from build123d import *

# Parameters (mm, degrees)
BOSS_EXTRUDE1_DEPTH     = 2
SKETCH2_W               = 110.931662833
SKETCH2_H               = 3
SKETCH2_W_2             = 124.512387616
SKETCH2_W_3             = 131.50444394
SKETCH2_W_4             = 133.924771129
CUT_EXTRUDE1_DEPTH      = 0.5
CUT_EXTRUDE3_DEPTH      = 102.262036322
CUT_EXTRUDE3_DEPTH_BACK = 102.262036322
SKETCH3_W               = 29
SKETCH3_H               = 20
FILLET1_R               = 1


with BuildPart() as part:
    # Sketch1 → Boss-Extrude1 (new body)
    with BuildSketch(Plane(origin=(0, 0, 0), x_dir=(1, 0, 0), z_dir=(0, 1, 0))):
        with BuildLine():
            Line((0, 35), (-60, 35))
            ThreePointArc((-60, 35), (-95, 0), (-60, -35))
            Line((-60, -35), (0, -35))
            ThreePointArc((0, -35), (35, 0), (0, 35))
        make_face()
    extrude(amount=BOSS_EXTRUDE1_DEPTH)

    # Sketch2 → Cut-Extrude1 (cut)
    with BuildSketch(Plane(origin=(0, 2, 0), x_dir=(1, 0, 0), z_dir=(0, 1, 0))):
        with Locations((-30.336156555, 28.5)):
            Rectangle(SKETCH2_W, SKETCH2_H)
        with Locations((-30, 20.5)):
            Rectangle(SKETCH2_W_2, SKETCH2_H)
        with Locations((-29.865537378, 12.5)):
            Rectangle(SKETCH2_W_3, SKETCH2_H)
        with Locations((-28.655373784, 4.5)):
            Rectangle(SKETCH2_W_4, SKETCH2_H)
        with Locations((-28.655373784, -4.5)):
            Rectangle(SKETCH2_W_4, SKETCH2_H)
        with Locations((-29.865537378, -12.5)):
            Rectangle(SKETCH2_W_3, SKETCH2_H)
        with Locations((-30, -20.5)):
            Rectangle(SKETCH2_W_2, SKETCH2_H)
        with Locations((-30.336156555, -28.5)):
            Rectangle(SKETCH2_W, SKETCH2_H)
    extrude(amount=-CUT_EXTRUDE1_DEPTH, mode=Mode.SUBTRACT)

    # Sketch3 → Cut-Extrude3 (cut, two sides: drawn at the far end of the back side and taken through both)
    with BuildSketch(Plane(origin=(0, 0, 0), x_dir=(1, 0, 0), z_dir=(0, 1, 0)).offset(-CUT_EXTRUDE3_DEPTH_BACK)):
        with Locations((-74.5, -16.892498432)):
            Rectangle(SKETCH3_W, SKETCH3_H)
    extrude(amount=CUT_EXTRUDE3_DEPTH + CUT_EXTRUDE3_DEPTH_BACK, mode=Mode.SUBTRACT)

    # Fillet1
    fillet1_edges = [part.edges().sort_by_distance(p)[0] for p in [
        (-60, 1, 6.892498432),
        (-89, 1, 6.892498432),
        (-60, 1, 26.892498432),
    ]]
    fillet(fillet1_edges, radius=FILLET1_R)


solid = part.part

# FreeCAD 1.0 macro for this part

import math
import FreeCAD as App
import Part
import Sketcher
from FreeCAD import Vector


def edges_at(feature, points):
    """Names of the edges that pass closest to the given points."""
    edges = feature.Shape.Edges
    near = lambda p: min(range(len(edges)), key=lambda i: edges[i].distToShape(Part.Vertex(*p))[0])
    return sorted({f"Edge{near(p) + 1}" for p in points})

doc = App.newDocument("Part")
body = doc.addObject("PartDesign::Body", "Body")

sketch1 = body.newObject("Sketcher::SketchObject", "Sketch")
sketch1.AttachmentSupport = (doc.getObject("XZ_Plane"), [""])
sketch1.MapMode = "FlatFace"
sketch1.addGeometry(Part.LineSegment(Vector(0, -35, 0), Vector(-60, -35, 0)), False)
sketch1.addGeometry(Part.ArcOfCircle(Part.Circle(Vector(-60, 0, 0), Vector(0, 0, 1), 35), math.radians(90), math.radians(270)), False)
sketch1.addGeometry(Part.LineSegment(Vector(-60, 35, 0), Vector(0, 35, 0)), False)
sketch1.addGeometry(Part.ArcOfCircle(Part.Circle(Vector(0, 0, 0), Vector(0, 0, 1), 35), math.radians(-90), math.radians(90)), False)
sketch1.addConstraint(Sketcher.Constraint("Tangent", 0, 2, 1, 2))
sketch1.addConstraint(Sketcher.Constraint("Tangent", 1, 1, 2, 1))
sketch1.addConstraint(Sketcher.Constraint("Tangent", 2, 2, 3, 2))
sketch1.addConstraint(Sketcher.Constraint("Tangent", 3, 1, 0, 1))
sketch1.addConstraint(Sketcher.Constraint("Horizontal", 0))
sketch1.addConstraint(Sketcher.Constraint("Horizontal", 2))
sketch1.addConstraint(Sketcher.Constraint("Coincident", 3, 3, -1, 1))
sketch1.addConstraint(Sketcher.Constraint("Radius", 1, 35.0))
sketch1.addConstraint(Sketcher.Constraint("DistanceX", 0, 2, 0, 1, 60.0))
pad1 = body.newObject("PartDesign::Pad", "Pad")
pad1.Profile = sketch1
pad1.Length = 2
pad1.Reversed = True

sketch2 = body.newObject("Sketcher::SketchObject", "Sketch001")
sketch2.AttachmentSupport = (doc.getObject("XZ_Plane"), [""])
sketch2.MapMode = "FlatFace"
sketch2.AttachmentOffset = App.Placement(Vector(0, 0, -2), App.Rotation())
sketch2.addGeometry(Part.LineSegment(Vector(-85.8, -30, 0), Vector(-85.8, -27, 0)), False)
sketch2.addGeometry(Part.LineSegment(Vector(-85.8, -27, 0), Vector(25.1, -27, 0)), False)
sketch2.addGeometry(Part.LineSegment(Vector(25.1, -27, 0), Vector(25.1, -30, 0)), False)
sketch2.addGeometry(Part.LineSegment(Vector(25.1, -30, 0), Vector(-85.8, -30, 0)), False)
sketch2.addGeometry(Part.LineSegment(Vector(-92.3, -22, 0), Vector(-92.3, -19, 0)), False)
sketch2.addGeometry(Part.LineSegment(Vector(-92.3, -19, 0), Vector(32.3, -19, 0)), False)
sketch2.addGeometry(Part.LineSegment(Vector(32.3, -19, 0), Vector(32.3, -22, 0)), False)
sketch2.addGeometry(Part.LineSegment(Vector(32.3, -22, 0), Vector(-92.3, -22, 0)), False)
sketch2.addGeometry(Part.LineSegment(Vector(-95.6, -14, 0), Vector(-95.6, -11, 0)), False)
sketch2.addGeometry(Part.LineSegment(Vector(-95.6, -11, 0), Vector(35.9, -11, 0)), False)
sketch2.addGeometry(Part.LineSegment(Vector(35.9, -11, 0), Vector(35.9, -14, 0)), False)
sketch2.addGeometry(Part.LineSegment(Vector(35.9, -14, 0), Vector(-95.6, -14, 0)), False)
sketch2.addGeometry(Part.LineSegment(Vector(-95.6, -6, 0), Vector(-95.6, -3, 0)), False)
sketch2.addGeometry(Part.LineSegment(Vector(-95.6, -3, 0), Vector(38.3, -3, 0)), False)
sketch2.addGeometry(Part.LineSegment(Vector(38.3, -3, 0), Vector(38.3, -6, 0)), False)
sketch2.addGeometry(Part.LineSegment(Vector(38.3, -6, 0), Vector(-95.6, -6, 0)), False)
sketch2.addGeometry(Part.LineSegment(Vector(-95.6, 3, 0), Vector(-95.6, 6, 0)), False)
sketch2.addGeometry(Part.LineSegment(Vector(-95.6, 6, 0), Vector(38.3, 6, 0)), False)
sketch2.addGeometry(Part.LineSegment(Vector(38.3, 6, 0), Vector(38.3, 3, 0)), False)
sketch2.addGeometry(Part.LineSegment(Vector(38.3, 3, 0), Vector(-95.6, 3, 0)), False)
sketch2.addGeometry(Part.LineSegment(Vector(-95.6, 11, 0), Vector(-95.6, 14, 0)), False)
sketch2.addGeometry(Part.LineSegment(Vector(-95.6, 14, 0), Vector(35.9, 14, 0)), False)
sketch2.addGeometry(Part.LineSegment(Vector(35.9, 14, 0), Vector(35.9, 11, 0)), False)
sketch2.addGeometry(Part.LineSegment(Vector(35.9, 11, 0), Vector(-95.6, 11, 0)), False)
sketch2.addGeometry(Part.LineSegment(Vector(-92.3, 19, 0), Vector(-92.3, 22, 0)), False)
sketch2.addGeometry(Part.LineSegment(Vector(-92.3, 22, 0), Vector(32.3, 22, 0)), False)
sketch2.addGeometry(Part.LineSegment(Vector(32.3, 22, 0), Vector(32.3, 19, 0)), False)
sketch2.addGeometry(Part.LineSegment(Vector(32.3, 19, 0), Vector(-92.3, 19, 0)), False)
sketch2.addGeometry(Part.LineSegment(Vector(-85.8, 27, 0), Vector(-85.8, 30, 0)), False)
sketch2.addGeometry(Part.LineSegment(Vector(-85.8, 30, 0), Vector(25.1, 30, 0)), False)
sketch2.addGeometry(Part.LineSegment(Vector(25.1, 30, 0), Vector(25.1, 27, 0)), False)
sketch2.addGeometry(Part.LineSegment(Vector(25.1, 27, 0), Vector(-85.8, 27, 0)), False)
sketch2.addConstraint(Sketcher.Constraint("Coincident", 0, 2, 1, 1))
sketch2.addConstraint(Sketcher.Constraint("Coincident", 1, 2, 2, 1))
sketch2.addConstraint(Sketcher.Constraint("Coincident", 2, 2, 3, 1))
sketch2.addConstraint(Sketcher.Constraint("Coincident", 3, 2, 0, 1))
sketch2.addConstraint(Sketcher.Constraint("Coincident", 4, 2, 5, 1))
sketch2.addConstraint(Sketcher.Constraint("Coincident", 5, 2, 6, 1))
sketch2.addConstraint(Sketcher.Constraint("Coincident", 6, 2, 7, 1))
sketch2.addConstraint(Sketcher.Constraint("Coincident", 7, 2, 4, 1))
sketch2.addConstraint(Sketcher.Constraint("Coincident", 8, 2, 9, 1))
sketch2.addConstraint(Sketcher.Constraint("Coincident", 9, 2, 10, 1))
sketch2.addConstraint(Sketcher.Constraint("Coincident", 10, 2, 11, 1))
sketch2.addConstraint(Sketcher.Constraint("Coincident", 11, 2, 8, 1))
sketch2.addConstraint(Sketcher.Constraint("Coincident", 12, 2, 13, 1))
sketch2.addConstraint(Sketcher.Constraint("Coincident", 13, 2, 14, 1))
sketch2.addConstraint(Sketcher.Constraint("Coincident", 14, 2, 15, 1))
sketch2.addConstraint(Sketcher.Constraint("Coincident", 15, 2, 12, 1))
sketch2.addConstraint(Sketcher.Constraint("Coincident", 16, 2, 17, 1))
sketch2.addConstraint(Sketcher.Constraint("Coincident", 17, 2, 18, 1))
sketch2.addConstraint(Sketcher.Constraint("Coincident", 18, 2, 19, 1))
sketch2.addConstraint(Sketcher.Constraint("Coincident", 19, 2, 16, 1))
sketch2.addConstraint(Sketcher.Constraint("Coincident", 20, 2, 21, 1))
sketch2.addConstraint(Sketcher.Constraint("Coincident", 21, 2, 22, 1))
sketch2.addConstraint(Sketcher.Constraint("Coincident", 22, 2, 23, 1))
sketch2.addConstraint(Sketcher.Constraint("Coincident", 23, 2, 20, 1))
sketch2.addConstraint(Sketcher.Constraint("Coincident", 24, 2, 25, 1))
sketch2.addConstraint(Sketcher.Constraint("Coincident", 25, 2, 26, 1))
sketch2.addConstraint(Sketcher.Constraint("Coincident", 26, 2, 27, 1))
sketch2.addConstraint(Sketcher.Constraint("Coincident", 27, 2, 24, 1))
sketch2.addConstraint(Sketcher.Constraint("Coincident", 28, 2, 29, 1))
sketch2.addConstraint(Sketcher.Constraint("Coincident", 29, 2, 30, 1))
sketch2.addConstraint(Sketcher.Constraint("Coincident", 30, 2, 31, 1))
sketch2.addConstraint(Sketcher.Constraint("Coincident", 31, 2, 28, 1))
sketch2.addConstraint(Sketcher.Constraint("Vertical", 0))
sketch2.addConstraint(Sketcher.Constraint("Horizontal", 1))
sketch2.addConstraint(Sketcher.Constraint("Vertical", 2))
sketch2.addConstraint(Sketcher.Constraint("Horizontal", 3))
sketch2.addConstraint(Sketcher.Constraint("Vertical", 4))
sketch2.addConstraint(Sketcher.Constraint("Horizontal", 5))
sketch2.addConstraint(Sketcher.Constraint("Vertical", 6))
sketch2.addConstraint(Sketcher.Constraint("Horizontal", 7))
sketch2.addConstraint(Sketcher.Constraint("Vertical", 8))
sketch2.addConstraint(Sketcher.Constraint("Horizontal", 9))
sketch2.addConstraint(Sketcher.Constraint("Vertical", 10))
sketch2.addConstraint(Sketcher.Constraint("Horizontal", 11))
sketch2.addConstraint(Sketcher.Constraint("Vertical", 12))
sketch2.addConstraint(Sketcher.Constraint("Horizontal", 13))
sketch2.addConstraint(Sketcher.Constraint("Vertical", 14))
sketch2.addConstraint(Sketcher.Constraint("Horizontal", 15))
sketch2.addConstraint(Sketcher.Constraint("Vertical", 16))
sketch2.addConstraint(Sketcher.Constraint("Horizontal", 17))
sketch2.addConstraint(Sketcher.Constraint("Vertical", 18))
sketch2.addConstraint(Sketcher.Constraint("Horizontal", 19))
sketch2.addConstraint(Sketcher.Constraint("Vertical", 20))
sketch2.addConstraint(Sketcher.Constraint("Horizontal", 21))
sketch2.addConstraint(Sketcher.Constraint("Vertical", 22))
sketch2.addConstraint(Sketcher.Constraint("Horizontal", 23))
sketch2.addConstraint(Sketcher.Constraint("Vertical", 24))
sketch2.addConstraint(Sketcher.Constraint("Horizontal", 25))
sketch2.addConstraint(Sketcher.Constraint("Vertical", 26))
sketch2.addConstraint(Sketcher.Constraint("Horizontal", 27))
sketch2.addConstraint(Sketcher.Constraint("Vertical", 28))
sketch2.addConstraint(Sketcher.Constraint("Horizontal", 29))
sketch2.addConstraint(Sketcher.Constraint("Vertical", 30))
sketch2.addConstraint(Sketcher.Constraint("Horizontal", 31))
sketch2.addConstraint(Sketcher.Constraint("Symmetric", 15, 2, 16, 2, -1))
sketch2.addConstraint(Sketcher.Constraint("Symmetric", 13, 2, 18, 2, -1))
sketch2.addConstraint(Sketcher.Constraint("Symmetric", 11, 2, 20, 2, -1))
sketch2.addConstraint(Sketcher.Constraint("Symmetric", 9, 2, 22, 2, -1))
sketch2.addConstraint(Sketcher.Constraint("Symmetric", 7, 2, 24, 2, -1))
sketch2.addConstraint(Sketcher.Constraint("Symmetric", 5, 2, 26, 2, -1))
sketch2.addConstraint(Sketcher.Constraint("Symmetric", 3, 2, 28, 2, -1))
sketch2.addConstraint(Sketcher.Constraint("Symmetric", 1, 2, 30, 2, -1))
sketch2.addConstraint(Sketcher.Constraint("Vertical", 11, 2, 12, 2))
sketch2.addConstraint(Sketcher.Constraint("Equal", 2, 4))
sketch2.addConstraint(Sketcher.Constraint("Equal", 6, 8))
sketch2.addConstraint(Sketcher.Constraint("Equal", 10, 12))
sketch2.addConstraint(Sketcher.Constraint("DistanceY", 0, 1, 0, 2, 3.0))
sketch2.addConstraint(Sketcher.Constraint("DistanceY", 0, 2, -1, 1, 27.0))
sketch2.addConstraint(Sketcher.Constraint("DistanceY", 4, 2, -1, 1, 19.0))
sketch2.addConstraint(Sketcher.Constraint("DistanceY", 8, 2, -1, 1, 11.0))
sketch2.addConstraint(Sketcher.Constraint("DistanceY", 12, 2, -1, 1, 3.0))
sketch2.addConstraint(Sketcher.Constraint("DistanceX", 13, 1, 13, 2, 133.924771))
sketch2.addConstraint(Sketcher.Constraint("DistanceX", 1, 1, 1, 2, 110.931663))
sketch2.addConstraint(Sketcher.Constraint("DistanceX", 5, 1, 5, 2, 124.512388))
sketch2.addConstraint(Sketcher.Constraint("DistanceX", 9, 1, 9, 2, 131.504444))
sketch2.addConstraint(Sketcher.Constraint("DistanceX", 8, 2, -1, 1, 95.617759))
sketch2.addConstraint(Sketcher.Constraint("DistanceX", 4, 2, 1, 2, 117.385869))
sketch2.addConstraint(Sketcher.Constraint("DistanceX", 8, 2, 0, 2, 9.815771))
pocket1 = body.newObject("PartDesign::Pocket", "Pocket")
pocket1.Profile = sketch2
pocket1.Length = 0.5
pocket1.Reversed = True

sketch3 = body.newObject("Sketcher::SketchObject", "Sketch002")
sketch3.AttachmentSupport = (doc.getObject("XZ_Plane"), [""])
sketch3.MapMode = "FlatFace"
sketch3.addGeometry(Part.LineSegment(Vector(-89, 7, 0), Vector(-89, 27, 0)), False)
sketch3.addGeometry(Part.LineSegment(Vector(-89, 27, 0), Vector(-60, 27, 0)), False)
sketch3.addGeometry(Part.LineSegment(Vector(-60, 27, 0), Vector(-60, 7, 0)), False)
sketch3.addGeometry(Part.LineSegment(Vector(-60, 7, 0), Vector(-89, 7, 0)), False)
sketch3.addConstraint(Sketcher.Constraint("Coincident", 0, 2, 1, 1))
sketch3.addConstraint(Sketcher.Constraint("Coincident", 1, 2, 2, 1))
sketch3.addConstraint(Sketcher.Constraint("Coincident", 2, 2, 3, 1))
sketch3.addConstraint(Sketcher.Constraint("Coincident", 3, 2, 0, 1))
sketch3.addConstraint(Sketcher.Constraint("Vertical", 0))
sketch3.addConstraint(Sketcher.Constraint("Horizontal", 1))
sketch3.addConstraint(Sketcher.Constraint("Vertical", 2))
sketch3.addConstraint(Sketcher.Constraint("Horizontal", 3))
sketch3.addConstraint(Sketcher.Constraint("DistanceX", 1, 1, 1, 2, 29.0))
sketch3.addConstraint(Sketcher.Constraint("DistanceY", 0, 1, 0, 2, 20.0))
sketch3.addConstraint(Sketcher.Constraint("DistanceX", 0, 2, -1, 1, 89.0))
sketch3.addConstraint(Sketcher.Constraint("DistanceY", -1, 1, 0, 2, 26.892498))
pocket2 = body.newObject("PartDesign::Pocket", "Pocket001")
pocket2.Profile = sketch3
pocket2.Type = "ThroughAll"
pocket2.Midplane = True
doc.recompute()

fillet = body.newObject("PartDesign::Fillet", "Fillet")
fillet.Base = (pocket2, edges_at(pocket2, [(-60, 1, 6.892), (-89, 1, 6.892), (-60, 1, 26.892)]))
fillet.Radius = 1

doc.recompute()
